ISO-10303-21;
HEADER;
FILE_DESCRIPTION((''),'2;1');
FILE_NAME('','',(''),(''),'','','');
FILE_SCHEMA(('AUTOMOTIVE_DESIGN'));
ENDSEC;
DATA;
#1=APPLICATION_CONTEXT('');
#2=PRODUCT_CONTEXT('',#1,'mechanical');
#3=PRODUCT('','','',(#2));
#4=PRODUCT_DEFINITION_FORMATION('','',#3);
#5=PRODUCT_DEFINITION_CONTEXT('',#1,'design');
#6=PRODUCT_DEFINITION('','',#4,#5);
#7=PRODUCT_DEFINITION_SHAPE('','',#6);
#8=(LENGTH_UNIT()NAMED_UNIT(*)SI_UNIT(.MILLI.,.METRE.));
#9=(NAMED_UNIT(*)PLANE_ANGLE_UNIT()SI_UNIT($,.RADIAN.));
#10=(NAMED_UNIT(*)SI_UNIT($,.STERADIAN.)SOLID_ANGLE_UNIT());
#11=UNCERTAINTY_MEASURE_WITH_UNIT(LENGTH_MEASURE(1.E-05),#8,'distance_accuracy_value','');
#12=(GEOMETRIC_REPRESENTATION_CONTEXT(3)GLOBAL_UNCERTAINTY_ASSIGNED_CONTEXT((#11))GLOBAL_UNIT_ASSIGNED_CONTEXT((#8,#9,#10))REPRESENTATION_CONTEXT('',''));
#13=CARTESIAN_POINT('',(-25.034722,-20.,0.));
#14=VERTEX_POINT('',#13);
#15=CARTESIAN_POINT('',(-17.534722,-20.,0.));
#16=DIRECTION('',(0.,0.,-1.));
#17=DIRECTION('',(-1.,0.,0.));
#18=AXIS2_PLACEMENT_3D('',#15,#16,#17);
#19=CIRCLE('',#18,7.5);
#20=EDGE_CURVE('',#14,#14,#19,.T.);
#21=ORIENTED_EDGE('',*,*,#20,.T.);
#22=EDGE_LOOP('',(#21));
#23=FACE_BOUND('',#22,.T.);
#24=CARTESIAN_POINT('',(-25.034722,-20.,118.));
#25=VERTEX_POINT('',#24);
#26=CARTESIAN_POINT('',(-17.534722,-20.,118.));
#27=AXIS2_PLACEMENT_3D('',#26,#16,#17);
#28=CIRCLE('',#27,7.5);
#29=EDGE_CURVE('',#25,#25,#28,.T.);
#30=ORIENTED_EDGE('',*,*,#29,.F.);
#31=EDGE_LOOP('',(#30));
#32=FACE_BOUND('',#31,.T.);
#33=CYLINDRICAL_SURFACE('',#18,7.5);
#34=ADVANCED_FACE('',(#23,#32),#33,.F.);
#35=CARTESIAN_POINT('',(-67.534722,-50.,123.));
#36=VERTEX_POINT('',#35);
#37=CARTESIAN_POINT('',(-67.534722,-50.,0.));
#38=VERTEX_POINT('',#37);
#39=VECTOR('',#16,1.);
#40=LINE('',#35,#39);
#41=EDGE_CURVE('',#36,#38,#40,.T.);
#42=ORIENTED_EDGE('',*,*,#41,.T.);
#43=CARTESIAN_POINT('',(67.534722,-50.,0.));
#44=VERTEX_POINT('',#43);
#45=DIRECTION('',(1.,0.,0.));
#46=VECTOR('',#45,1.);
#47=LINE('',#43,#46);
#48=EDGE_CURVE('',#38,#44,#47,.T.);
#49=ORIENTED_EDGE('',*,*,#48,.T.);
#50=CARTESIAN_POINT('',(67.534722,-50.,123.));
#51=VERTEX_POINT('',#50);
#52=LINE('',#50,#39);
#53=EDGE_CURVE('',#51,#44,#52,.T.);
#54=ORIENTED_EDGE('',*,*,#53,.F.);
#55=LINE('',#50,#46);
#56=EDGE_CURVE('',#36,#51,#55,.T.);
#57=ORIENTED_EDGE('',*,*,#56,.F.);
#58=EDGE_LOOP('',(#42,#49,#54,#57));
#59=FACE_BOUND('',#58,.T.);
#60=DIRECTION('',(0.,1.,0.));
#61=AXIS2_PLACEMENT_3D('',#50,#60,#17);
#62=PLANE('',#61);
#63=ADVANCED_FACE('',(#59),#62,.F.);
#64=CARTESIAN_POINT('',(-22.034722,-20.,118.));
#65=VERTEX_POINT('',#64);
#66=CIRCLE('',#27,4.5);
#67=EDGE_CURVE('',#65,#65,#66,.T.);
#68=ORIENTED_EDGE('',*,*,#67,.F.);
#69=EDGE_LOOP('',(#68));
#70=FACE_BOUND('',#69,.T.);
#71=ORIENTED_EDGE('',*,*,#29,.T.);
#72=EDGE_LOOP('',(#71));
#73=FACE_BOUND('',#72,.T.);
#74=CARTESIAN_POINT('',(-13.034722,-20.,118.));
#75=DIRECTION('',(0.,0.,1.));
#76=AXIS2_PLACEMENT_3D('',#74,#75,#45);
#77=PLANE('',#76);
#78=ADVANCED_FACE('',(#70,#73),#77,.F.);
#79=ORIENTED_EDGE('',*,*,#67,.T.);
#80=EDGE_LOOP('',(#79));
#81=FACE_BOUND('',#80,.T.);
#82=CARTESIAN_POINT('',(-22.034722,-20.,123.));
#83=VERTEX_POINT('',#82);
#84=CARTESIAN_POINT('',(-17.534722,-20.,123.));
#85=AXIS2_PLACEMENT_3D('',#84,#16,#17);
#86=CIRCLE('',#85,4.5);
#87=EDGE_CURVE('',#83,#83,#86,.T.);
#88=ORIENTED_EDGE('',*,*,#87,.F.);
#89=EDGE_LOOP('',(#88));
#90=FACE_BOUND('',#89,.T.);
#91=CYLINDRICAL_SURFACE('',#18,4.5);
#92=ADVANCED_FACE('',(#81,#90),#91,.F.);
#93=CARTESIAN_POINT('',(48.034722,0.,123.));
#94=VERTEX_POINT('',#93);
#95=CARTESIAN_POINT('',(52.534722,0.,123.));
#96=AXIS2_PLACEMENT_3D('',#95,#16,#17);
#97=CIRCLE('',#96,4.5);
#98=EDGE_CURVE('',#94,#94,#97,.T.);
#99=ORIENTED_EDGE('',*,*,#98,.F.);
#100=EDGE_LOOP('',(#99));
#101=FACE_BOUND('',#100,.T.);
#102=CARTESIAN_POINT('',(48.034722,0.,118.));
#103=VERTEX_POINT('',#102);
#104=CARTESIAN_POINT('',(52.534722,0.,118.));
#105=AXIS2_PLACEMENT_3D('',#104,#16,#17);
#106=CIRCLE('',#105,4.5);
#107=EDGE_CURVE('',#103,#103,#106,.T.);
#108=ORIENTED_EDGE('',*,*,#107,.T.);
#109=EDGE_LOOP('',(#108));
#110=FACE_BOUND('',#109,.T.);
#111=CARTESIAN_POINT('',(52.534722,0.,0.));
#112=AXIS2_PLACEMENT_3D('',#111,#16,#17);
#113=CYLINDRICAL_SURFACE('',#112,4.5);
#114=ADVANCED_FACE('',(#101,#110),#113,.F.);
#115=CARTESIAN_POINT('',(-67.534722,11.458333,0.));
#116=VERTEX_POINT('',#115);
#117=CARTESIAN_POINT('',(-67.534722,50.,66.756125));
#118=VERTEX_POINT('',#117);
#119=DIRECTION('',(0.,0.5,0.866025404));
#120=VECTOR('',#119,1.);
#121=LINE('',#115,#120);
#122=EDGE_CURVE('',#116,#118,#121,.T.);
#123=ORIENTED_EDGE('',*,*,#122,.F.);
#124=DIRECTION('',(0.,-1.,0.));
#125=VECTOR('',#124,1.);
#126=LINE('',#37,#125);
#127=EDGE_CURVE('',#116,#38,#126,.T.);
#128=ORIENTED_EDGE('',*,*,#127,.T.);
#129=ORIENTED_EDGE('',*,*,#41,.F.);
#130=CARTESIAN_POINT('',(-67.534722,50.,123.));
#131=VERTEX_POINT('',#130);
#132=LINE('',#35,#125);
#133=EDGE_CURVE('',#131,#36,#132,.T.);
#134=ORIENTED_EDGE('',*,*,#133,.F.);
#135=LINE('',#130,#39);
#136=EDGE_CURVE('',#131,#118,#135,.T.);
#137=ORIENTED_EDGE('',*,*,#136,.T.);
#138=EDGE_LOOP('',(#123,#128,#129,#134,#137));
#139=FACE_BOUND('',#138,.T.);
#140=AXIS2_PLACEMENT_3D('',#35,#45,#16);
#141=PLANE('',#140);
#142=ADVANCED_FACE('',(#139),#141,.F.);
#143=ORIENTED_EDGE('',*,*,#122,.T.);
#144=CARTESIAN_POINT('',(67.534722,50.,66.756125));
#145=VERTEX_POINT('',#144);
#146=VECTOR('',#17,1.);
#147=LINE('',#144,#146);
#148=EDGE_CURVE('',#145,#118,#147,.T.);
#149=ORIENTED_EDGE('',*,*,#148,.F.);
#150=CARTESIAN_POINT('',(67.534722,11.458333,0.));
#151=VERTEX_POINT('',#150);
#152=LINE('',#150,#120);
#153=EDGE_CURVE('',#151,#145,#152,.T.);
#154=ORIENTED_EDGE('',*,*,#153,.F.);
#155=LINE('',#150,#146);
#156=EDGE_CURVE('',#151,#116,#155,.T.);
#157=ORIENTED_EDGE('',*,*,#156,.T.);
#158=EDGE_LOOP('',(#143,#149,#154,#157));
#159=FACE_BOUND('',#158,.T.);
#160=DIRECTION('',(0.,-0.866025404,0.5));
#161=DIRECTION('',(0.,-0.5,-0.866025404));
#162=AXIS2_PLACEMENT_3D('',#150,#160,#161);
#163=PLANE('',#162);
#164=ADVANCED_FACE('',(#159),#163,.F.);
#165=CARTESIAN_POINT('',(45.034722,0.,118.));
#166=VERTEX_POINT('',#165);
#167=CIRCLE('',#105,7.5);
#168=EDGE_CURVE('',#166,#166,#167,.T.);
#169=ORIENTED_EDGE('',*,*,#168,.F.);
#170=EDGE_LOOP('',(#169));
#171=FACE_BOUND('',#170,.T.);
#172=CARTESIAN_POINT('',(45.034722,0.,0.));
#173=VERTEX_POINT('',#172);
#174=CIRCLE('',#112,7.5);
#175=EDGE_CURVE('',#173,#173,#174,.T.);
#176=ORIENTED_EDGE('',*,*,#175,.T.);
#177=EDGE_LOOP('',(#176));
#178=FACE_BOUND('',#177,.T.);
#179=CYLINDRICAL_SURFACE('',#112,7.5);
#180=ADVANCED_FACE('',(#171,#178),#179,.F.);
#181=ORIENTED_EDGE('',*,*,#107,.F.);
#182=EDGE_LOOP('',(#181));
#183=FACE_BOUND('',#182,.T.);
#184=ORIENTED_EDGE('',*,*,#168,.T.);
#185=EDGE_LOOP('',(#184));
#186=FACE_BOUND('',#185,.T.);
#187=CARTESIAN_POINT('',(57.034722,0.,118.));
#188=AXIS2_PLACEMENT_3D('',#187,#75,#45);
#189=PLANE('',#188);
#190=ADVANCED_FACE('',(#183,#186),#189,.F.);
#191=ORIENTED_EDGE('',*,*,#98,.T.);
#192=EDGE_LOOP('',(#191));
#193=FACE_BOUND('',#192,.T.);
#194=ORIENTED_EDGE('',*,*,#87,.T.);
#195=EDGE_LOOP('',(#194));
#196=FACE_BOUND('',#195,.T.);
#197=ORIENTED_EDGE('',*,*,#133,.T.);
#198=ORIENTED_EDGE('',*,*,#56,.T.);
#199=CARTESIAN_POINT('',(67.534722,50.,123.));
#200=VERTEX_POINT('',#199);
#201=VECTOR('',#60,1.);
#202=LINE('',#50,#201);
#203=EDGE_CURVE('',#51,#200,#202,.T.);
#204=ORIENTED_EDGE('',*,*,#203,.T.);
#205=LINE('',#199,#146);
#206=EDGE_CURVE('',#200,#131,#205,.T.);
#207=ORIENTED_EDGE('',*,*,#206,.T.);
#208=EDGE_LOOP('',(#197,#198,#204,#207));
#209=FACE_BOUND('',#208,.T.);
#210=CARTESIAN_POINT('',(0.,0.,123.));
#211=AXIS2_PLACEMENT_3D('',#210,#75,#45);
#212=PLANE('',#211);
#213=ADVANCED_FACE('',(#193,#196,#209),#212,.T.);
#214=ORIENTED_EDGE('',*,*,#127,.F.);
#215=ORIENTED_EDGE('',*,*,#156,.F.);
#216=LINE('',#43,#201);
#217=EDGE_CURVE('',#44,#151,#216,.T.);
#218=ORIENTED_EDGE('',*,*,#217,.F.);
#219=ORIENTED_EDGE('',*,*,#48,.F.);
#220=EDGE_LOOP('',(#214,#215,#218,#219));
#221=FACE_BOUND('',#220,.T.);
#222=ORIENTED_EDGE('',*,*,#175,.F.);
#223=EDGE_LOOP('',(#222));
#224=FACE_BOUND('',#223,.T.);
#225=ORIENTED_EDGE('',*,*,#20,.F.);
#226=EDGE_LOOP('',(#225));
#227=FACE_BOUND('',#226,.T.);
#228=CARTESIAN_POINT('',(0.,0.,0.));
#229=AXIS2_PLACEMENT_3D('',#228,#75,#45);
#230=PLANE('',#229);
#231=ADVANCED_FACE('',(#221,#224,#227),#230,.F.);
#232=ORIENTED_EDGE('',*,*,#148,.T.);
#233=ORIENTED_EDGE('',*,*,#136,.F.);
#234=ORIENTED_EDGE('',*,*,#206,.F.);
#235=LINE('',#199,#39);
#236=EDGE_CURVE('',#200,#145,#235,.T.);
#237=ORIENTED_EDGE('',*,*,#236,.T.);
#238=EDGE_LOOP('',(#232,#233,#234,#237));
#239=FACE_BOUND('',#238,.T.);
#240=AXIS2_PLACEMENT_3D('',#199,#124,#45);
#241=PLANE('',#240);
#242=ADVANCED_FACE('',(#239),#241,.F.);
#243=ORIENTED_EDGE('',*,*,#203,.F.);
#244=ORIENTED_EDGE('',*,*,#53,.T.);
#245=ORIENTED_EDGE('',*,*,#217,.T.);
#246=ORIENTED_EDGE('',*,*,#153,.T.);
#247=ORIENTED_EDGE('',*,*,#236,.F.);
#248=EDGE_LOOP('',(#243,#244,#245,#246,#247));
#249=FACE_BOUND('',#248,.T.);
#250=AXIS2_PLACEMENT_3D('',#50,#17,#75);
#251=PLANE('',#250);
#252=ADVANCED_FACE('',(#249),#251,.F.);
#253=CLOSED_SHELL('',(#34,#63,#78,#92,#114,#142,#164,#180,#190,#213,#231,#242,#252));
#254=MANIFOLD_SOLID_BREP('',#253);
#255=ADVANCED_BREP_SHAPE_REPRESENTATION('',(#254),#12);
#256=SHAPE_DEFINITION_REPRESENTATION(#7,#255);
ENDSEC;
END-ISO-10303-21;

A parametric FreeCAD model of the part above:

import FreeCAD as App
import Part
import Sketcher
from FreeCAD import Vector
Q = App.Units.Quantity


def add_polygon(sketch, points):
    """Adds a closed chain of lines whose ends are joined by coincident constraints."""
    first, n = sketch.GeometryCount, len(points)
    for a, b in zip(points, points[1:] + points[:1]):
        sketch.addGeometry(Part.LineSegment(App.Vector(*a, 0), App.Vector(*b, 0)), False)
    for i in range(n):
        sketch.addConstraint(Sketcher.Constraint("Coincident", first + i, 2, first + (i + 1) % n, 1))

doc = App.newDocument("Part")
body = doc.addObject("PartDesign::Body", "Body")

# Sketch on XY plane
sketch1 = body.newObject("Sketcher::SketchObject", "Sketch")
sketch1.AttachmentSupport = (doc.getObject("XY_Plane"), [""])
sketch1.MapMode = "FlatFace"
add_polygon(sketch1, [(-67.534722, 50), (-67.534722, -50), (67.534722, -50), (67.534722, 50)])  # lines 0-3
sketch1.addConstraint(Sketcher.Constraint("Vertical", 0))
sketch1.addConstraint(Sketcher.Constraint("Horizontal", 1))
sketch1.addConstraint(Sketcher.Constraint("Vertical", 2))
sketch1.addConstraint(Sketcher.Constraint("Horizontal", 3))
sketch1.addConstraint(Sketcher.Constraint("Symmetric", 0, 2, 2, 2, -1, 1))
sketch1.addConstraint(Sketcher.Constraint("DistanceY", 0, 2, 0, 1, 100.0))
sketch1.addConstraint(Sketcher.Constraint("DistanceX", 1, 1, 1, 2, 135.069444))
pad1 = body.newObject("PartDesign::Pad", "Pad")
pad1.Profile = sketch1
pad1.Length = 123

# Sketch on YZ plane
sketch2 = body.newObject("Sketcher::SketchObject", "Sketch001")
sketch2.AttachmentSupport = (doc.getObject("YZ_Plane"), [""])
sketch2.MapMode = "FlatFace"
sketch2.AttachmentOffset = App.Placement(Vector(0, 0, -67.534722), App.Rotation())
add_polygon(sketch2, [(11.458333, 0), (50, 66.756125), (71.777877, 0)])  # lines 0-2
sketch2.addConstraint(Sketcher.Constraint("Horizontal", 2))
sketch2.addConstraint(Sketcher.Constraint("PointOnObject", 1, 2, -1))
sketch2.addConstraint(Sketcher.Constraint("Angle", 0, Q("60 deg")))
sketch2.addConstraint(Sketcher.Constraint("DistanceX", -1, 1, 0, 2, 50.0))
sketch2.addConstraint(Sketcher.Constraint("Distance", 1, 70.218631))
sketch2.addConstraint(Sketcher.Constraint("DistanceX", 2, 2, 2, 1, 60.319543))
pocket1 = body.newObject("PartDesign::Pocket", "Pocket")
pocket1.Profile = sketch2
pocket1.Type = "ThroughAll"
pocket1.Reversed = True

# Sketch on XY plane
sketch3 = body.newObject("Sketcher::SketchObject", "Sketch002")
sketch3.AttachmentSupport = (doc.getObject("XY_Plane"), [""])
sketch3.MapMode = "FlatFace"
sketch3.addGeometry(Part.Circle(Vector(52.534722, 0, 0), Vector(0, 0, 1), 4.5), False)
sketch3.addGeometry(Part.Circle(Vector(-17.534722, -20, 0), Vector(0, 0, 1), 4.5), False)
sketch3.addConstraint(Sketcher.Constraint("Equal", 0, 1))
sketch3.addConstraint(Sketcher.Constraint("PointOnObject", 0, 3, -1))
sketch3.addConstraint(Sketcher.Constraint("Diameter", 0, 9.0))
sketch3.addConstraint(Sketcher.Constraint("DistanceY", 1, 3, -1, 1, 20.0))
sketch3.addConstraint(Sketcher.Constraint("DistanceX", -1, 1, 0, 3, 52.534722))
sketch3.addConstraint(Sketcher.Constraint("DistanceX", 1, 3, -1, 1, 17.534722))
doc.recompute()
hole = body.newObject("PartDesign::Hole", "Hole")
hole.Profile = sketch3
hole.ThreadType = "None"
hole.Diameter = 9
hole.DepthType = "ThroughAll"
hole.HoleCutType = "Counterbore"
hole.HoleCutDiameter = 15
hole.HoleCutDepth = 118
hole.Reversed = True

doc.recompute()
